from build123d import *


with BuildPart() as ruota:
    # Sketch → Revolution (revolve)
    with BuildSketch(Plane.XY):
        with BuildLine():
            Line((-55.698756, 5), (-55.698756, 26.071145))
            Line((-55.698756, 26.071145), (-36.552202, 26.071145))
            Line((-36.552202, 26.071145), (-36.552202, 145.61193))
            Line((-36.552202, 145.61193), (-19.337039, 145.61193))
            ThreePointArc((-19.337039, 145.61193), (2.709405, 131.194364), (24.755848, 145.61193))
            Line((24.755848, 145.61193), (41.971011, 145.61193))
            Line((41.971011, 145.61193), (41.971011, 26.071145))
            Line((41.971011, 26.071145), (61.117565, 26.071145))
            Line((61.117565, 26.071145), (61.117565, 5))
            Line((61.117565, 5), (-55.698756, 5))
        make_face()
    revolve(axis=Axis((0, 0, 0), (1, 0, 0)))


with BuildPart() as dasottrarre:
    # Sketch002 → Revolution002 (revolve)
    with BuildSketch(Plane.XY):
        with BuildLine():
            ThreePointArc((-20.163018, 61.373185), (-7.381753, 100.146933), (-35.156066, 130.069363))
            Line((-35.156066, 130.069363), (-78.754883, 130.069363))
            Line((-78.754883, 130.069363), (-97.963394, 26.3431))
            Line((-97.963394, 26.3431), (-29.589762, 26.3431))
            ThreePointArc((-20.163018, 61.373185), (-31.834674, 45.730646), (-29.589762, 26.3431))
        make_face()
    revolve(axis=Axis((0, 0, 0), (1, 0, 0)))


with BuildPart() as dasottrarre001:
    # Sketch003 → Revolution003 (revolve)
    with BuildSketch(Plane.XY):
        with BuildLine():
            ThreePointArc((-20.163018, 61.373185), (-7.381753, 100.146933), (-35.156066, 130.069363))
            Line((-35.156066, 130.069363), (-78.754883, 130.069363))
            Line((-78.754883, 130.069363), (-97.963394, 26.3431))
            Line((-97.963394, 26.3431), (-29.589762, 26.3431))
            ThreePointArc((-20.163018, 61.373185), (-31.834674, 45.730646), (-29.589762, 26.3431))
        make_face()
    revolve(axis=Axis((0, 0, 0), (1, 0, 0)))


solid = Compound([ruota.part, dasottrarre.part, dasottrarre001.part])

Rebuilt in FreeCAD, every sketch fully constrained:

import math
import FreeCAD as App
import Part
import Sketcher

V = App.Vector

doc = App.newDocument("Part")
body = doc.addObject("PartDesign::Body", "Body")

# Sketch on XY plane
sketch1 = body.newObject("Sketcher::SketchObject", "Sketch")
sketch1.AttachmentSupport = (doc.getObject("XY_Plane"), [""])
sketch1.MapMode = "FlatFace"
sketch1.addGeometry([
    Part.LineSegment(V(-56, 26, 0), V(-56, 5, 0)),  # 0
    Part.LineSegment(V(-56, 5, 0), V(61, 5, 0)),  # 1
    Part.LineSegment(V(61, 5, 0), V(61, 26, 0)),  # 2
    Part.LineSegment(V(61, 26, 0), V(42, 26, 0)),  # 3
    Part.LineSegment(V(42, 26, 0), V(42, 146, 0)),  # 4
    Part.LineSegment(V(42, 146, 0), V(25, 146, 0)),  # 5
    Part.ArcOfCircle(Part.Circle(V(3, 155, 0), V(0, 0, 1), 24), math.radians(-156), math.radians(-24)),  # 6
    Part.LineSegment(V(-19, 146, 0), V(-37, 146, 0)),  # 7
    Part.LineSegment(V(-37, 146, 0), V(-37, 26, 0)),  # 8
    Part.LineSegment(V(-37, 26, 0), V(-56, 26, 0)),  # 9
], False)
sketch1.addConstraint([
    Sketcher.Constraint("Coincident", 0, 2, 1, 1),
    Sketcher.Constraint("Coincident", 1, 2, 2, 1),
    Sketcher.Constraint("Coincident", 2, 2, 3, 1),
    Sketcher.Constraint("Coincident", 3, 2, 4, 1),
    Sketcher.Constraint("Coincident", 4, 2, 5, 1),
    Sketcher.Constraint("Coincident", 5, 2, 6, 2),
    Sketcher.Constraint("Coincident", 6, 1, 7, 1),
    Sketcher.Constraint("Coincident", 7, 2, 8, 1),
    Sketcher.Constraint("Coincident", 8, 2, 9, 1),
    Sketcher.Constraint("Coincident", 9, 2, 0, 1),
    Sketcher.Constraint("Vertical", 0),
    Sketcher.Constraint("Horizontal", 1),
    Sketcher.Constraint("Vertical", 2),
    Sketcher.Constraint("Horizontal", 3),
    Sketcher.Constraint("Vertical", 4),
    Sketcher.Constraint("Horizontal", 5),
    Sketcher.Constraint("Horizontal", 7),
    Sketcher.Constraint("Vertical", 8),
    Sketcher.Constraint("Horizontal", 9),
    Sketcher.Constraint("Horizontal", 5, 2, 6, 1),
    Sketcher.Constraint("Horizontal", 3, 2, 8, 2),
    Sketcher.Constraint("Equal", 5, 7),
    Sketcher.Constraint("Equal", 3, 9),
    Sketcher.Constraint("DistanceY", -1, 1, 0, 2, 5.0),
    Sketcher.Constraint("Radius", 6, 24.064807),
    Sketcher.Constraint("DistanceX", 1, 1, 1, 2, 116.816321),
    Sketcher.Constraint("DistanceX", 3, 2, 3, 1, 19.146554),
    Sketcher.Constraint("DistanceX", 5, 2, 5, 1, 17.215163),
    Sketcher.Constraint("DistanceY", 0, 2, 0, 1, 21.071145),
    Sketcher.Constraint("DistanceY", 4, 1, 4, 2, 119.540785),
    Sketcher.Constraint("DistanceX", -1, 1, 3, 2, 41.971011),
])
revolution = body.newObject("PartDesign::Revolution", "Revolution")
revolution.Profile = sketch1
revolution.ReferenceAxis = (sketch1, ["H_Axis"])
revolution.Angle = 360
body2 = doc.addObject("PartDesign::Body", "Body001")

# Sketch on XY plane
sketch2 = body2.newObject("Sketcher::SketchObject", "Sketch001")
sketch2.AttachmentSupport = (doc.getObject("XY_Plane001"), [""])
sketch2.MapMode = "FlatFace"
sketch2.addGeometry([
    Part.ArcOfCircle(Part.Circle(V(-47, 92, 0), V(0, 0, 1), 40), math.radians(-49), math.radians(73)),  # 0
    Part.LineSegment(V(-35, 130, 0), V(-79, 130, 0)),  # 1
    Part.LineSegment(V(-79, 130, 0), V(-98, 26, 0)),  # 2
    Part.LineSegment(V(-98, 26, 0), V(-30, 26, 0)),  # 3
    Part.ArcOfCircle(Part.Circle(V(-6, 39, 0), V(0, 0, 1), 26), math.radians(122), math.radians(208)),  # 4
], False)
sketch2.addConstraint([
    Sketcher.Constraint("Coincident", 0, 2, 1, 1),
    Sketcher.Constraint("Coincident", 1, 2, 2, 1),
    Sketcher.Constraint("Coincident", 2, 2, 3, 1),
    Sketcher.Constraint("Coincident", 3, 2, 4, 2),
    Sketcher.Constraint("Coincident", 4, 1, 0, 1),
    Sketcher.Constraint("Horizontal", 1),
    Sketcher.Constraint("Horizontal", 3),
    Sketcher.Constraint("Radius", 0, 40.153079),
    Sketcher.Constraint("Radius", 4, 26.431138),
    Sketcher.Constraint("DistanceX", 3, 1, 3, 2, 68.373632),
    Sketcher.Constraint("DistanceY", -1, 1, 2, 2, 26.3431),
    Sketcher.Constraint("DistanceY", 4, 3, 0, 2, 91.2071),
    Sketcher.Constraint("Distance", 2, 105.489831),
    Sketcher.Constraint("DistanceX", 1, 2, 1, 1, 43.598817),
    Sketcher.Constraint("DistanceX", 4, 3, -1, 1, 6.31154),
    Sketcher.Constraint("DistanceX", 1, 2, 0, 3, 32.143509),
    Sketcher.Constraint("DistanceX", 2, 2, 0, 3, 51.35202),
])
revolution2 = body2.newObject("PartDesign::Revolution", "Revolution001")
revolution2.Profile = sketch2
revolution2.ReferenceAxis = (sketch2, ["H_Axis"])
revolution2.Angle = 360
body3 = doc.addObject("PartDesign::Body", "Body002")

# Sketch on XY plane
sketch3 = body3.newObject("Sketcher::SketchObject", "Sketch002")
sketch3.AttachmentSupport = (doc.getObject("XY_Plane002"), [""])
sketch3.MapMode = "FlatFace"
sketch3.addGeometry([
    Part.ArcOfCircle(Part.Circle(V(-47, 92, 0), V(0, 0, 1), 40), math.radians(-49), math.radians(73)),  # 0
    Part.LineSegment(V(-35, 130, 0), V(-79, 130, 0)),  # 1
    Part.LineSegment(V(-79, 130, 0), V(-98, 26, 0)),  # 2
    Part.LineSegment(V(-98, 26, 0), V(-30, 26, 0)),  # 3
    Part.ArcOfCircle(Part.Circle(V(-6, 39, 0), V(0, 0, 1), 26), math.radians(122), math.radians(208)),  # 4
], False)
sketch3.addConstraint([
    Sketcher.Constraint("Coincident", 0, 2, 1, 1),
    Sketcher.Constraint("Coincident", 1, 2, 2, 1),
    Sketcher.Constraint("Coincident", 2, 2, 3, 1),
    Sketcher.Constraint("Coincident", 3, 2, 4, 2),
    Sketcher.Constraint("Coincident", 4, 1, 0, 1),
    Sketcher.Constraint("Horizontal", 1),
    Sketcher.Constraint("Horizontal", 3),
    Sketcher.Constraint("Radius", 0, 40.153079),
    Sketcher.Constraint("Radius", 4, 26.431138),
    Sketcher.Constraint("DistanceX", 3, 1, 3, 2, 68.373632),
    Sketcher.Constraint("DistanceY", -1, 1, 2, 2, 26.3431),
    Sketcher.Constraint("DistanceY", 4, 3, 0, 2, 91.2071),
    Sketcher.Constraint("Distance", 2, 105.489831),
    Sketcher.Constraint("DistanceX", 1, 2, 1, 1, 43.598817),
    Sketcher.Constraint("DistanceX", 4, 3, -1, 1, 6.31154),
    Sketcher.Constraint("DistanceX", 1, 2, 0, 3, 32.143509),
    Sketcher.Constraint("DistanceX", 2, 2, 0, 3, 51.35202),
])
revolution3 = body3.newObject("PartDesign::Revolution", "Revolution002")
revolution3.Profile = sketch3
revolution3.ReferenceAxis = (sketch3, ["H_Axis"])
revolution3.Angle = 360

doc.recompute()
